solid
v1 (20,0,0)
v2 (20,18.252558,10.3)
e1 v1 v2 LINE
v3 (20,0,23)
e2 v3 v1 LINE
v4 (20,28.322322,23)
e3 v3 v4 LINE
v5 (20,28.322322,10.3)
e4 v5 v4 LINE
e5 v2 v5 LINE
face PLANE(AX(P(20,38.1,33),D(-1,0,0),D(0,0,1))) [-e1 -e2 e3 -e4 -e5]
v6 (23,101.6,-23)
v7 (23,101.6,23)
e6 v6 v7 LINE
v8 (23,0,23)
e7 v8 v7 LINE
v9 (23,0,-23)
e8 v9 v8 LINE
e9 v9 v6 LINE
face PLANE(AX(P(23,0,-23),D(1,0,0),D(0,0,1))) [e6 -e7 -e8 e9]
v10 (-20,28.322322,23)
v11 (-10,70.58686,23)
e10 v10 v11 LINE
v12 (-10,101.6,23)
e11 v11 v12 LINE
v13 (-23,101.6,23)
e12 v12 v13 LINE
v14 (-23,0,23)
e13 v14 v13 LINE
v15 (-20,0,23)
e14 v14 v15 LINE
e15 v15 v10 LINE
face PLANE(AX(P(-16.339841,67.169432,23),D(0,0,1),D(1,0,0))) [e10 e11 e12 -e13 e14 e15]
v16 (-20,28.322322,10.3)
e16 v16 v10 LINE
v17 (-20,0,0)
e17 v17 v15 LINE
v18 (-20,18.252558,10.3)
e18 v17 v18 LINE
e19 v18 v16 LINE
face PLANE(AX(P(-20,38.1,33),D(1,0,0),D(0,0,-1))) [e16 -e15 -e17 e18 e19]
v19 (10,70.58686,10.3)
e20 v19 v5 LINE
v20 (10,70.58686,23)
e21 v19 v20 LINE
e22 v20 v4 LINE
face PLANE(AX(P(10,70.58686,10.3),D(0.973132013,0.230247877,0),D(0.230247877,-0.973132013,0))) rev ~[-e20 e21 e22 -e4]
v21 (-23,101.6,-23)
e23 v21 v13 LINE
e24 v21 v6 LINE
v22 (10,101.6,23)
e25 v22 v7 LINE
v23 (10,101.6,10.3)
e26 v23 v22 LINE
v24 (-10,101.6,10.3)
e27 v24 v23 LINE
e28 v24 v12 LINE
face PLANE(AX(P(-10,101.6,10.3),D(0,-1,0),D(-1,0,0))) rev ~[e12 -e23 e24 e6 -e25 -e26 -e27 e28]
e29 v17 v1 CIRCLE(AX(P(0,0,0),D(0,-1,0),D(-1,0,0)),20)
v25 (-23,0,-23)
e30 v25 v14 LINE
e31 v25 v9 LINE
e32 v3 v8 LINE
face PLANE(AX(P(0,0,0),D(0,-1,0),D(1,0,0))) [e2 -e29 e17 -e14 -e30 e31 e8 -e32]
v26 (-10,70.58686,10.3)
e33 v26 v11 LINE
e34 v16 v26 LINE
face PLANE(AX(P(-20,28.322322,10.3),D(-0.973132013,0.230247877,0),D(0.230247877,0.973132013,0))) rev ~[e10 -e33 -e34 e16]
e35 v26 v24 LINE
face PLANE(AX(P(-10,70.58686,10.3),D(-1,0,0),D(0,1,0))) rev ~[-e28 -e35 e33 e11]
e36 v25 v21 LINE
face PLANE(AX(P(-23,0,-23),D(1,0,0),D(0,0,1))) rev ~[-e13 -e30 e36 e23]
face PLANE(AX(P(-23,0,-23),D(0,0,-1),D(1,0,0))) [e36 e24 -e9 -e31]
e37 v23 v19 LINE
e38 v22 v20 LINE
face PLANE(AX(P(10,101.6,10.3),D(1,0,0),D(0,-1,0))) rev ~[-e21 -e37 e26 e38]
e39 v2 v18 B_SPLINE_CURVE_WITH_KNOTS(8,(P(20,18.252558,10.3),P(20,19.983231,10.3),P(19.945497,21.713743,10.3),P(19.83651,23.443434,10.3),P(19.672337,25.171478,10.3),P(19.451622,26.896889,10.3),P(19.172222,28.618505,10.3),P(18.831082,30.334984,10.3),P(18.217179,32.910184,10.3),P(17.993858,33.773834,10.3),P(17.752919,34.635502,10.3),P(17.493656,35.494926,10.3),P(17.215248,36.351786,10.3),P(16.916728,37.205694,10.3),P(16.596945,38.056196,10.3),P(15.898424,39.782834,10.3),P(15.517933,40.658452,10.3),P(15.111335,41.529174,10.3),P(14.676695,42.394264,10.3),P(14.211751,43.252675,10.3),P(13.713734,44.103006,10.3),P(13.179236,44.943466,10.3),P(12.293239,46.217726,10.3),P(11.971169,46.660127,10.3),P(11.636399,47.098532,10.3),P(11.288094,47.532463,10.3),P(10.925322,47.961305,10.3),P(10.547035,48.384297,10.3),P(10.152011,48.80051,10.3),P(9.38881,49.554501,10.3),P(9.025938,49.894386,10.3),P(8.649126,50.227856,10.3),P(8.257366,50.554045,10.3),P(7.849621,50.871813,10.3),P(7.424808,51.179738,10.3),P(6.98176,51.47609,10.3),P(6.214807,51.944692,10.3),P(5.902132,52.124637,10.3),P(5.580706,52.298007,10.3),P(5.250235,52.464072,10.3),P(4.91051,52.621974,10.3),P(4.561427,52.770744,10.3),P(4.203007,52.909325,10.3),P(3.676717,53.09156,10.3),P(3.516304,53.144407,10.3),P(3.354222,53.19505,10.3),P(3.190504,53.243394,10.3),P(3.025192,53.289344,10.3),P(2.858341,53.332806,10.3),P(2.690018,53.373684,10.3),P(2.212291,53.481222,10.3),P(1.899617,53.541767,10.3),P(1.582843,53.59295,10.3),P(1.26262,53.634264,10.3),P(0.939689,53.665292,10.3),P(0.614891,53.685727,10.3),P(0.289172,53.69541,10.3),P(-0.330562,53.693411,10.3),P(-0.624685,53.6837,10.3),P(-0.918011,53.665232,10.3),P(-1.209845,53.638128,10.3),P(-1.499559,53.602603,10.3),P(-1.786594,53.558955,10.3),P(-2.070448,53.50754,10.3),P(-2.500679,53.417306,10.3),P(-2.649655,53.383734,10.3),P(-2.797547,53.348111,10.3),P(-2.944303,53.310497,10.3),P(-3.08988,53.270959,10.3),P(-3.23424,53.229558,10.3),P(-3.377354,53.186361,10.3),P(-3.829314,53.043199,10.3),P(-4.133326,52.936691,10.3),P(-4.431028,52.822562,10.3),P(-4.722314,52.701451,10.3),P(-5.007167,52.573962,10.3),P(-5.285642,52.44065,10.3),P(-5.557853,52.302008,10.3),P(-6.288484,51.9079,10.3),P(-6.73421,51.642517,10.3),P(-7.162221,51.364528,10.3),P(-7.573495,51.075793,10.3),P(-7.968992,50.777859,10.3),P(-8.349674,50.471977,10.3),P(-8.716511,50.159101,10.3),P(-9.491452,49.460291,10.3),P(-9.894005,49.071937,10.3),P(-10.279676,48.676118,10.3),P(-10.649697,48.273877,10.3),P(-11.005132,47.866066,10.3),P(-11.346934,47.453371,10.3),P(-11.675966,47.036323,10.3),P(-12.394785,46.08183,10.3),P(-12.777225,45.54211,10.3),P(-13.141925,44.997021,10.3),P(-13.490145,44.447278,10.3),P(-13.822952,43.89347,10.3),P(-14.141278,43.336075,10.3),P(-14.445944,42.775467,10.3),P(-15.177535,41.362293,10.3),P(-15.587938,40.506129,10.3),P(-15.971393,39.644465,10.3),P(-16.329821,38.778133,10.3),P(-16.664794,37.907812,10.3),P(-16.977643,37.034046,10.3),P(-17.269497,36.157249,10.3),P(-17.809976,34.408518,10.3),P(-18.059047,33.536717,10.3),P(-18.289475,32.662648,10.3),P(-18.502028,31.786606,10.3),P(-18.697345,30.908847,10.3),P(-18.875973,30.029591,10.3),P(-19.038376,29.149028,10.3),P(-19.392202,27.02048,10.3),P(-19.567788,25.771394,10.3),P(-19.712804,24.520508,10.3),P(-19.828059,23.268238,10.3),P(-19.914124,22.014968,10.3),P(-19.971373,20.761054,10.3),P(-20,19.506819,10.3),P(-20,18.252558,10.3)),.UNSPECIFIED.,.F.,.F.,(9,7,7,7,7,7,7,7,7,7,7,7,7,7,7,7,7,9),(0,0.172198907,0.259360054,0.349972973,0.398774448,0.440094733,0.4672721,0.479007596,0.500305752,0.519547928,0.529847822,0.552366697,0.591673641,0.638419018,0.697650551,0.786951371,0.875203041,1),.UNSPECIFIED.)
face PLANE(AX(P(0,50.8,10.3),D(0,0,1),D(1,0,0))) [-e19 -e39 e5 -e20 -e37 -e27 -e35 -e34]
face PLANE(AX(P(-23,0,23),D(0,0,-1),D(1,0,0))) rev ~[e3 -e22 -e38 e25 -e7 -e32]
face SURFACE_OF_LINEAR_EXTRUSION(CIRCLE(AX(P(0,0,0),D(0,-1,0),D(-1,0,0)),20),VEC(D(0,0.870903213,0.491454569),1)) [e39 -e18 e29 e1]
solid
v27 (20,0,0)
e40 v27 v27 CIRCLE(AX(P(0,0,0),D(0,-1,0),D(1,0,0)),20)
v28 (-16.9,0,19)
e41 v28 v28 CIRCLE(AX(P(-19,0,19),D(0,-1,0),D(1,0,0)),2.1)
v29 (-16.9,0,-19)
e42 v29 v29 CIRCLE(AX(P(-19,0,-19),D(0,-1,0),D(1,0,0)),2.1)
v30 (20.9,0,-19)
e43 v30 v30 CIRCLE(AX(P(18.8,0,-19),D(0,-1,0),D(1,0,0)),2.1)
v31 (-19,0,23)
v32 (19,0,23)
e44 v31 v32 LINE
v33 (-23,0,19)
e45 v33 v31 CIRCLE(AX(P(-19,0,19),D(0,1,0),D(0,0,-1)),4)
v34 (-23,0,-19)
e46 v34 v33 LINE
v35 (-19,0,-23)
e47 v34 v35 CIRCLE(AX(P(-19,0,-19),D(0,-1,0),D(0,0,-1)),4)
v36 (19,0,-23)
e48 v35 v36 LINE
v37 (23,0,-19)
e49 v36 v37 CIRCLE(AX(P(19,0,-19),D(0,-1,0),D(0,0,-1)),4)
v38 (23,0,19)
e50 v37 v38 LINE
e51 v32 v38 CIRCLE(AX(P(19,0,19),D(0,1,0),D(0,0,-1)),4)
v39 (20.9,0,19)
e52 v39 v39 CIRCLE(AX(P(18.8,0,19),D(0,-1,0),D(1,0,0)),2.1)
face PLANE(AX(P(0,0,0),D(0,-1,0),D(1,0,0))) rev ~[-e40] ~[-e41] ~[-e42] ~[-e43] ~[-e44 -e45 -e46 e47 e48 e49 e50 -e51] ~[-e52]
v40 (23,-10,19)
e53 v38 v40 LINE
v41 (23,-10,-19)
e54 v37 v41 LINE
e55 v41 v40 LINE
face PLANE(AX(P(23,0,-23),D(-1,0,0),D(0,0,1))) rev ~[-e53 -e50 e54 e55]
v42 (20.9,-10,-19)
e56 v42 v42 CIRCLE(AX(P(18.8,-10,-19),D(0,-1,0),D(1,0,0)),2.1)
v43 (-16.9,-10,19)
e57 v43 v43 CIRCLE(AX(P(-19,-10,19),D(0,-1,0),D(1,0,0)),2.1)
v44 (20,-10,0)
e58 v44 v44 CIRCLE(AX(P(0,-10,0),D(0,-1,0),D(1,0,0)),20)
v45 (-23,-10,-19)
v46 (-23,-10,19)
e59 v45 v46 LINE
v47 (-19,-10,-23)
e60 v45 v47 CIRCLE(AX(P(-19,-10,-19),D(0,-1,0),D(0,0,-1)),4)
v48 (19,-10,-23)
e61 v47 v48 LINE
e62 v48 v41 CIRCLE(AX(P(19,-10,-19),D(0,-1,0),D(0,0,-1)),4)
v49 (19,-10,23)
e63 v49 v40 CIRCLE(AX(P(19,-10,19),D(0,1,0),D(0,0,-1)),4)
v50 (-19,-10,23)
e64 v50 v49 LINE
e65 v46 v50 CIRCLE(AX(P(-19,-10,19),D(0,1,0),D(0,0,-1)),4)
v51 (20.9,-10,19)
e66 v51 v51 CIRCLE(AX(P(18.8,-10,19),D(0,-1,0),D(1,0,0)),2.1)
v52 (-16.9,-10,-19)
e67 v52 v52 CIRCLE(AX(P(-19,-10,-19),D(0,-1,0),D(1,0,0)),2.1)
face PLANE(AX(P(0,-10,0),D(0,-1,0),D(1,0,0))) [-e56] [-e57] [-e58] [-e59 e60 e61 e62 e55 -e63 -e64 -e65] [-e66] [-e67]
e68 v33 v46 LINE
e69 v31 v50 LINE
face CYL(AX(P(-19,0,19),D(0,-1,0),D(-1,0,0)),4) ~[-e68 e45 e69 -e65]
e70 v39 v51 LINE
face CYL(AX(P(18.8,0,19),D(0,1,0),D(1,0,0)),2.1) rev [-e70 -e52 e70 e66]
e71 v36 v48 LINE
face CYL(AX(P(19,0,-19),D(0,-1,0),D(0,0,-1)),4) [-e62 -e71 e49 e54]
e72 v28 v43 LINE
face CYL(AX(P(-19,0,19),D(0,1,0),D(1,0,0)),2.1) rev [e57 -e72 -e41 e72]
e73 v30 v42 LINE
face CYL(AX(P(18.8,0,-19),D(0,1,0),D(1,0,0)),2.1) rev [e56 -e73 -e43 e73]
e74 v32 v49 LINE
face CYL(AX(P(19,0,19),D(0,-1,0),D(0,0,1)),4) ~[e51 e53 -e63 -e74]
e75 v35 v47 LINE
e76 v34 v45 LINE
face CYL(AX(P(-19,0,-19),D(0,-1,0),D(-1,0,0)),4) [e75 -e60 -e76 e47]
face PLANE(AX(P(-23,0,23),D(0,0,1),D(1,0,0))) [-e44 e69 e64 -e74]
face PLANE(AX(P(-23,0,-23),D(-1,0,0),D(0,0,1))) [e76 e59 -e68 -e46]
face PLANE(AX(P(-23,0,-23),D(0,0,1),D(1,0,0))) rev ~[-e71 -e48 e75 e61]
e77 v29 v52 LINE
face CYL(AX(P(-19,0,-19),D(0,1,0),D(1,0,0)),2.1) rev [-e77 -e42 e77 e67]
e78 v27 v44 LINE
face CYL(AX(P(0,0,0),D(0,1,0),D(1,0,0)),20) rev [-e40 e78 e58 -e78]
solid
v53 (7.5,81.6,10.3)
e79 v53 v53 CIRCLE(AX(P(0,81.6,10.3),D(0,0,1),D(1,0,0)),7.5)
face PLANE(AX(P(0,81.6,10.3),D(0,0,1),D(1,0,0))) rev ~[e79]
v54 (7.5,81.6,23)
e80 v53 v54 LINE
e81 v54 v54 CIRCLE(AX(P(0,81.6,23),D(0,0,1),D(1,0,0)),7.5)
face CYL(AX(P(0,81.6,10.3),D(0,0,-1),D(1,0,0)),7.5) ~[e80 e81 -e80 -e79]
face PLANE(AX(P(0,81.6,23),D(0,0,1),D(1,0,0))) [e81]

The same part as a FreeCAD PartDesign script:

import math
import FreeCAD as App
import Part
import Sketcher
Q = App.Units.Quantity


def edges_at(feature, points):
    """Names of the edges that pass closest to the given points."""
    edges = feature.Shape.Edges
    near = lambda p: min(range(len(edges)), key=lambda i: edges[i].distToShape(Part.Vertex(*p))[0])
    return sorted({f"Edge{near(p) + 1}" for p in points})


def add_polygon(sketch, points):
    """Adds a closed chain of lines whose ends are joined by coincident constraints."""
    first, n = sketch.GeometryCount, len(points)
    for a, b in zip(points, points[1:] + points[:1]):
        sketch.addGeometry(Part.LineSegment(App.Vector(*a, 0), App.Vector(*b, 0)), False)
    for i in range(n):
        sketch.addConstraint(Sketcher.Constraint("Coincident", first + i, 2, first + (i + 1) % n, 1))

doc = App.newDocument("Part")
params = doc.addObject("Spreadsheet::Sheet", "Params")
for row, (alias, value) in enumerate([
    ("sketch1_width", "46 mm"),
    ("pad1_length", "101.6 mm"),
    ("sketch2_radius", "20 mm"),
    ("sketch2_height", "23 mm"),
    ("sketch4_width", "40 mm"),
    ("sketch4_height", "101.6 mm"),
    ("pocket1_length", "12.7 mm"),
    ("sketch5_width", "10 mm"),
    ("pad2_length", "12.7 mm"),
    ("sketch6_diameter", "40 mm"),
    ("sketch6_diameter2", "4.2 mm"),
    ("sketch6_width", "46 mm"),
    ("pad3_length", "10 mm"),
    ("fillet_radius", "4 mm"),
    ("sketch7_diameter", "15 mm"),
    ("pad4_length", "12.7 mm"),
], start=1):
    params.set(f"A{row}", alias)
    params.set(f"B{row}", "=" + value)
    params.setAlias(f"B{row}", alias)

body = doc.addObject("PartDesign::Body", "Body")

sketch1 = body.newObject("Sketcher::SketchObject", "Sketch")
sketch1.AttachmentSupport = (doc.getObject("XZ_Plane"), [""])
sketch1.MapMode = "FlatFace"
add_polygon(sketch1, [(-23, 23), (-23, -23), (23, -23), (23, 23)])
sketch1.addConstraint([
    Sketcher.Constraint("Vertical", 0),
    Sketcher.Constraint("Horizontal", 1),
    Sketcher.Constraint("Vertical", 2),
    Sketcher.Constraint("Horizontal", 3),
    Sketcher.Constraint("Symmetric", 0, 2, 2, 2, -1, 1),
    Sketcher.Constraint("Equal", 3, 0),
    Sketcher.Constraint("DistanceX", 1, 1, 1, 2, Q("46 mm")),
])
sketch1.setExpression("Constraints[10]", "Params.sketch1_width")
pad1 = body.newObject("PartDesign::Pad", "Pad")
pad1.Profile = sketch1
pad1.setExpression("Length", "Params.pad1_length")
pad1.Reversed = True

sketch2 = body.newObject("Sketcher::SketchObject", "Sketch001")
sketch2.AttachmentSupport = (doc.getObject("XZ_Plane"), [""])
sketch2.MapMode = "FlatFace"
sketch2.addGeometry([
    Part.LineSegment(App.Vector(-20, 23, 0), App.Vector(-20, 0, 0)),
    Part.ArcOfCircle(Part.Circle(App.Vector(0, 0, 0), App.Vector(0, 0, 1), 20), math.radians(180), math.radians(360)),
    Part.LineSegment(App.Vector(20, 0, 0), App.Vector(20, 23, 0)),
    Part.LineSegment(App.Vector(20, 23, 0), App.Vector(-20, 23, 0)),
], False)
sketch2.addConstraint([
    Sketcher.Constraint("Tangent", 0, 2, 1, 1),
    Sketcher.Constraint("Tangent", 1, 2, 2, 1),
    Sketcher.Constraint("Coincident", 2, 2, 3, 1),
    Sketcher.Constraint("Coincident", 3, 2, 0, 1),
    Sketcher.Constraint("Vertical", 0),
    Sketcher.Constraint("Vertical", 2),
    Sketcher.Constraint("Horizontal", 3),
    Sketcher.Constraint("Coincident", 1, 3, -1, 1),
    Sketcher.Constraint("Radius", 1, Q("20 mm")),
    Sketcher.Constraint("DistanceY", 0, 2, 0, 1, Q("23 mm")),
])
sketch2.setExpression("Constraints[8]", "Params.sketch2_radius")
sketch2.setExpression("Constraints[9]", "Params.sketch2_height")

sketch3 = body.newObject("Sketcher::SketchObject", "Sketch002")
sketch3.Placement = App.Placement(App.Vector(0, 8.560187, -15.169448), App.Rotation(App.Vector(0, 0.870903213, 0.491454569), App.Vector(1, 0, 0), App.Vector(0, 0.491454569, -0.870903213), "ZXY"))
sketch3.addGeometry(Part.LineSegment(App.Vector(-10, 0, 0), App.Vector(78, 0, 0)), False)
sketch3.addConstraint([
    Sketcher.Constraint("Horizontal", 0),
    Sketcher.Constraint("PointOnObject", 0, 1, -1),
    Sketcher.Constraint("DistanceX", 0, 1, 0, 2, Q("87.495371 mm")),
    Sketcher.Constraint("DistanceX", 0, 1, -1, 1, Q("9.829091 mm")),
])
doc.recompute()

subtractivepipe = body.newObject("PartDesign::SubtractivePipe", "SubtractivePipe")
subtractivepipe.Profile = sketch2
subtractivepipe.Spine = (sketch3, ["Edge1"])

sketch4 = body.newObject("Sketcher::SketchObject", "Sketch003")
sketch4.AttachmentSupport = (doc.getObject("XY_Plane"), [""])
sketch4.MapMode = "FlatFace"
sketch4.AttachmentOffset = App.Placement(App.Vector(0, 0, 23), App.Rotation())
add_polygon(sketch4, [(-20, 102), (-20, 0), (20, 0), (20, 102)])
sketch4.addConstraint([
    Sketcher.Constraint("Vertical", 0),
    Sketcher.Constraint("Horizontal", 1),
    Sketcher.Constraint("Vertical", 2),
    Sketcher.Constraint("Horizontal", 3),
    Sketcher.Constraint("Symmetric", 0, 2, 1, 2, -1, 1),
    Sketcher.Constraint("DistanceX", 1, 1, 1, 2, Q("40 mm")),
    Sketcher.Constraint("DistanceY", 0, 2, 0, 1, Q("101.6 mm")),
])
sketch4.setExpression("Constraints[9]", "Params.sketch4_width")
sketch4.setExpression("Constraints[10]", "Params.sketch4_height")
pocket1 = body.newObject("PartDesign::Pocket", "Pocket")
pocket1.Profile = sketch4
pocket1.setExpression("Length", "Params.pocket1_length")

sketch5 = body.newObject("Sketcher::SketchObject", "Sketch004")
sketch5.AttachmentSupport = (doc.getObject("XY_Plane"), [""])
sketch5.MapMode = "FlatFace"
sketch5.AttachmentOffset = App.Placement(App.Vector(0, 0, 10.3), App.Rotation())
add_polygon(sketch5, [(-20, 102), (-20, 28), (-10, 71), (-10, 102)])
add_polygon(sketch5, [(10, 71), (20, 28), (20, 102), (10, 102)])
sketch5.addConstraint([
    Sketcher.Constraint("Vertical", 0),
    Sketcher.Constraint("Vertical", 2),
    Sketcher.Constraint("Horizontal", 3),
    Sketcher.Constraint("Vertical", 5),
    Sketcher.Constraint("Horizontal", 6),
    Sketcher.Constraint("Vertical", 7),
    Sketcher.Constraint("Symmetric", 0, 2, 4, 2, -2),
    Sketcher.Constraint("Symmetric", 2, 2, 6, 2, -2),
    Sketcher.Constraint("Horizontal", 1, 2, 7, 2),
    Sketcher.Constraint("DistanceX", 3, 2, 3, 1, Q("10 mm")),
    Sketcher.Constraint("DistanceX", 0, 2, -1, 1, Q("20 mm")),
    Sketcher.Constraint("DistanceY", -1, 1, 2, 2, Q("101.6 mm")),
    Sketcher.Constraint("DistanceY", 2, 1, 2, 2, Q("31.01314 mm")),
    Sketcher.Constraint("DistanceY", 0, 2, 0, 1, Q("73.277678 mm")),
])
sketch5.setExpression("Constraints[17]", "Params.sketch5_width")
pad2 = body.newObject("PartDesign::Pad", "Pad001")
pad2.Profile = sketch5
pad2.setExpression("Length", "Params.pad2_length")
body2 = doc.addObject("PartDesign::Body", "Body001")

sketch6 = body2.newObject("Sketcher::SketchObject", "Sketch005")
sketch6.AttachmentSupport = (doc.getObject("XZ_Plane001"), [""])
sketch6.MapMode = "FlatFace"
add_polygon(sketch6, [(-23, 23), (-23, -23), (23, -23), (23, 23)])
sketch6.addGeometry(Part.Circle(App.Vector(-19, -19, 0), App.Vector(0, 0, 1), 2.1), False)
sketch6.addGeometry(Part.Circle(App.Vector(18.8, -19, 0), App.Vector(0, 0, 1), 2.1), False)
sketch6.addGeometry(Part.Circle(App.Vector(-19, 19, 0), App.Vector(0, 0, 1), 2.1), False)
sketch6.addGeometry(Part.Circle(App.Vector(0, 0, 0), App.Vector(0, 0, 1), 20), False)
sketch6.addGeometry(Part.Circle(App.Vector(18.8, 19, 0), App.Vector(0, 0, 1), 2.1), False)
sketch6.addConstraint([
    Sketcher.Constraint("Vertical", 0),
    Sketcher.Constraint("Horizontal", 1),
    Sketcher.Constraint("Vertical", 2),
    Sketcher.Constraint("Horizontal", 3),
    Sketcher.Constraint("Coincident", 7, 3, -1, 1),
    Sketcher.Constraint("Equal", 4, 5),
    Sketcher.Constraint("Equal", 5, 6),
    Sketcher.Constraint("Equal", 6, 8),
    Sketcher.Constraint("Symmetric", 0, 2, 2, 2, -1, 1),
    Sketcher.Constraint("Symmetric", 4, 3, 6, 3, -1),
    Sketcher.Constraint("Symmetric", 5, 3, 8, 3, -1),
    Sketcher.Constraint("Horizontal", 4, 3, 5, 3),
    Sketcher.Constraint("Equal", 3, 0),
    Sketcher.Constraint("Diameter", 7, Q("40 mm")),
    Sketcher.Constraint("Diameter", 4, Q("4.2 mm")),
    Sketcher.Constraint("DistanceX", 1, 1, 1, 2, Q("46 mm")),
    Sketcher.Constraint("DistanceX", 4, 3, -1, 1, Q("19 mm")),
    Sketcher.Constraint("DistanceY", 4, 3, -1, 1, Q("19 mm")),
    Sketcher.Constraint("DistanceX", -1, 1, 5, 3, Q("18.8 mm")),
])
sketch6.setExpression("Constraints[17]", "Params.sketch6_diameter")
sketch6.setExpression("Constraints[18]", "Params.sketch6_diameter2")
sketch6.setExpression("Constraints[19]", "Params.sketch6_width")
pad3 = body2.newObject("PartDesign::Pad", "Pad002")
pad3.Profile = sketch6
pad3.setExpression("Length", "Params.pad3_length")
doc.recompute()

fillet = body2.newObject("PartDesign::Fillet", "Fillet")
fillet.Base = (pad3, edges_at(pad3, [
    (23, -5, 23),
    (-23, -5, 23),
    (-23, -5, -23),
    (23, -5, -23),
]))
fillet.setExpression("Radius", "Params.fillet_radius")
body3 = doc.addObject("PartDesign::Body", "Body002")

sketch7 = body3.newObject("Sketcher::SketchObject", "Sketch006")
sketch7.AttachmentSupport = (doc.getObject("XY_Plane002"), [""])
sketch7.MapMode = "FlatFace"
sketch7.AttachmentOffset = App.Placement(App.Vector(0, 0, 10.3), App.Rotation())
sketch7.addGeometry(Part.Circle(App.Vector(0, 82, 0), App.Vector(0, 0, 1), 8), False)
sketch7.addConstraint([
    Sketcher.Constraint("PointOnObject", 0, 3, -2),
    Sketcher.Constraint("Diameter", 0, Q("15 mm")),
    Sketcher.Constraint("DistanceY", -1, 1, 0, 3, Q("81.6 mm")),
])
sketch7.setExpression("Constraints[1]", "Params.sketch7_diameter")
pad4 = body3.newObject("PartDesign::Pad", "Pad003")
pad4.Profile = sketch7
pad4.setExpression("Length", "Params.pad4_length")

doc.recompute()
